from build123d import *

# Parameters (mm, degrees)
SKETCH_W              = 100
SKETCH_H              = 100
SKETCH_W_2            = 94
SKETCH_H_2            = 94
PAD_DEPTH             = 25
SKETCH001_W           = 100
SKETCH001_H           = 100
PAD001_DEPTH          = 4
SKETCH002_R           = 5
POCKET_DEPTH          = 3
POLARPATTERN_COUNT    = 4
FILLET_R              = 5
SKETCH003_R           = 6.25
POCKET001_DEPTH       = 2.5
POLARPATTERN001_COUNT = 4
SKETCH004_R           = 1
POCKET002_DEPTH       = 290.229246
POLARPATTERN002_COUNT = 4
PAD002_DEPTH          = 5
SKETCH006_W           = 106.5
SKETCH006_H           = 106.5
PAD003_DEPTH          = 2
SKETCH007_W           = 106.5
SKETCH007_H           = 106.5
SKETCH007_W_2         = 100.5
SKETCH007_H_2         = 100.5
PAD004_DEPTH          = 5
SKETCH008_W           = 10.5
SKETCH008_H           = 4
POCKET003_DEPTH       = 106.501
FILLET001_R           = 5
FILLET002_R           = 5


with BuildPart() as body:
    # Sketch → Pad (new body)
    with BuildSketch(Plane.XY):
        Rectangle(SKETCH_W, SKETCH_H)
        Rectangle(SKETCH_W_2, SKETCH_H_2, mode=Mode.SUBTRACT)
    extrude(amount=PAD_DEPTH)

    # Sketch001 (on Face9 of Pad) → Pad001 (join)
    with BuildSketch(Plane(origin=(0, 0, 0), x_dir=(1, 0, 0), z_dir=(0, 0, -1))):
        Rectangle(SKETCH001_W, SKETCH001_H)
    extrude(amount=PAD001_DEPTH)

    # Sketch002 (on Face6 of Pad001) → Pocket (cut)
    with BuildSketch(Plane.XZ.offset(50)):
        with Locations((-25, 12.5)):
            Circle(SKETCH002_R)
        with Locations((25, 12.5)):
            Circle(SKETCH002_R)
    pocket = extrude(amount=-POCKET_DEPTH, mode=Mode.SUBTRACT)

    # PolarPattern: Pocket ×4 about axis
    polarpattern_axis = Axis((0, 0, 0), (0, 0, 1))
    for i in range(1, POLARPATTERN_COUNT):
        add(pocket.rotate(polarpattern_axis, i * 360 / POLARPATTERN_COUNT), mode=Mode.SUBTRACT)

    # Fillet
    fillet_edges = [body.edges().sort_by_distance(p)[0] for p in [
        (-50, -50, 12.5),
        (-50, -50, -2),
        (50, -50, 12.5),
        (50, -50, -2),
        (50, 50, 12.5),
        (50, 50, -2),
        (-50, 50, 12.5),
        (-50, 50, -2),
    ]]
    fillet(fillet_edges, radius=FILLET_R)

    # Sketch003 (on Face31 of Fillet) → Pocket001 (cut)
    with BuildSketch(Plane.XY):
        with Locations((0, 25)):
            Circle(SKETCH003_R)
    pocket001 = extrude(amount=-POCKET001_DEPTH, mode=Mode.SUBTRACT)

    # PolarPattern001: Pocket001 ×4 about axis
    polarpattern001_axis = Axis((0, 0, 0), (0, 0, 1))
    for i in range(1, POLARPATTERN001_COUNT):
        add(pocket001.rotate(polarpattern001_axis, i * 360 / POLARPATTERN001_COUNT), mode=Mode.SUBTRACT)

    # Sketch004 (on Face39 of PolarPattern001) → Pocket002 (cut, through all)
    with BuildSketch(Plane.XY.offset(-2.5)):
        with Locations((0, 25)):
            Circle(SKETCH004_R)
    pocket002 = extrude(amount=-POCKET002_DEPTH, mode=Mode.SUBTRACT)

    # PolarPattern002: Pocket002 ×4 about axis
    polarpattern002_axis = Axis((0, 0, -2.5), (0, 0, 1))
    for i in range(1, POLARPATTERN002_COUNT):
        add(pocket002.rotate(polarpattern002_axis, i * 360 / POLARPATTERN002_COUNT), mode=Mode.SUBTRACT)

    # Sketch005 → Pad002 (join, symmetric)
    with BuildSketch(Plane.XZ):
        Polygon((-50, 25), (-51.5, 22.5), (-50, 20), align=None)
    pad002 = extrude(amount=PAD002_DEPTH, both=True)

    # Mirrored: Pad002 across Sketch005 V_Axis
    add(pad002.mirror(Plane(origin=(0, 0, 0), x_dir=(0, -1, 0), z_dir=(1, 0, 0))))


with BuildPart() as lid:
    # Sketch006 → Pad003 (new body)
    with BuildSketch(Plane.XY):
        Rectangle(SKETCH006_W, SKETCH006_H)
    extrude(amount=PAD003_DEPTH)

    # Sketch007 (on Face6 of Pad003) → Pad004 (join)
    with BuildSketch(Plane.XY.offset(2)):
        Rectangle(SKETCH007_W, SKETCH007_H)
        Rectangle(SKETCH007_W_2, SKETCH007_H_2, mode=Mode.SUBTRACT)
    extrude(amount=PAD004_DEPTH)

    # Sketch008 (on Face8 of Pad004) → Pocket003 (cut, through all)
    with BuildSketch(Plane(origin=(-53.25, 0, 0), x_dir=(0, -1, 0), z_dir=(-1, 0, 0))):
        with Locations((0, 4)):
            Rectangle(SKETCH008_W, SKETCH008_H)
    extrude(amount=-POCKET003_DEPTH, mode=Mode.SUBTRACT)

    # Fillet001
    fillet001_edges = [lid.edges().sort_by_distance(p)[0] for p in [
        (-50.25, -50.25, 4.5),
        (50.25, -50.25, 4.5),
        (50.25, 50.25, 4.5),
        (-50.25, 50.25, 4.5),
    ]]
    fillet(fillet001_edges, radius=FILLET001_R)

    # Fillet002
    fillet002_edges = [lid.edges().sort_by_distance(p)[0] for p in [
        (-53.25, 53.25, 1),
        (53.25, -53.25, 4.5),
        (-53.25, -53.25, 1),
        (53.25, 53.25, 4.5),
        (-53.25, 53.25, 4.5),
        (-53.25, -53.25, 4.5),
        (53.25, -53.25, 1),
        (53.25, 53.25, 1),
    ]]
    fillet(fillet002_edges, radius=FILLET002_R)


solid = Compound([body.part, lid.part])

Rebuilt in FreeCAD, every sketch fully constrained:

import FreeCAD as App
import Part
import Sketcher
Q = App.Units.Quantity


def edges_at(feature, points):
    """Names of the edges that pass closest to the given points."""
    edges = feature.Shape.Edges
    near = lambda p: min(range(len(edges)), key=lambda i: edges[i].distToShape(Part.Vertex(*p))[0])
    return sorted({f"Edge{near(p) + 1}" for p in points})

doc = App.newDocument("Part")
body = doc.addObject("PartDesign::Body", "Body")

sketch1 = body.newObject("Sketcher::SketchObject", "Sketch")
sketch1.AttachmentSupport = (doc.getObject("XY_Plane"), [""])
sketch1.MapMode = "FlatFace"
sketch1.addGeometry([
    Part.LineSegment(App.Vector(-50, 50, 0), App.Vector(-50, -50, 0)),
    Part.LineSegment(App.Vector(-50, -50, 0), App.Vector(50, -50, 0)),
    Part.LineSegment(App.Vector(50, -50, 0), App.Vector(50, 50, 0)),
    Part.LineSegment(App.Vector(50, 50, 0), App.Vector(-50, 50, 0)),
    Part.LineSegment(App.Vector(47, -47, 0), App.Vector(-47, -47, 0)),
    Part.LineSegment(App.Vector(-47, -47, 0), App.Vector(-47, 47, 0)),
    Part.LineSegment(App.Vector(-47, 47, 0), App.Vector(47, 47, 0)),
    Part.LineSegment(App.Vector(47, 47, 0), App.Vector(47, -47, 0)),
], False)
sketch1.addConstraint([
    Sketcher.Constraint("Coincident", 0, 2, 1, 1),
    Sketcher.Constraint("Coincident", 1, 2, 2, 1),
    Sketcher.Constraint("Coincident", 2, 2, 3, 1),
    Sketcher.Constraint("Coincident", 3, 2, 0, 1),
    Sketcher.Constraint("Coincident", 4, 2, 5, 1),
    Sketcher.Constraint("Coincident", 5, 2, 6, 1),
    Sketcher.Constraint("Coincident", 6, 2, 7, 1),
    Sketcher.Constraint("Coincident", 7, 2, 4, 1),
    Sketcher.Constraint("Vertical", 0),
    Sketcher.Constraint("Horizontal", 1),
    Sketcher.Constraint("Vertical", 2),
    Sketcher.Constraint("Horizontal", 3),
    Sketcher.Constraint("Horizontal", 4),
    Sketcher.Constraint("Vertical", 5),
    Sketcher.Constraint("Horizontal", 6),
    Sketcher.Constraint("Vertical", 7),
    Sketcher.Constraint("Symmetric", 0, 2, 2, 2, -1, 1),
    Sketcher.Constraint("Symmetric", 4, 2, 6, 2, -1, 1),
    Sketcher.Constraint("Equal", 3, 0),
    Sketcher.Constraint("Equal", 6, 5),
    Sketcher.Constraint("DistanceX", 1, 1, 1, 2, Q("100 mm")),
    Sketcher.Constraint("DistanceX", 4, 2, 4, 1, Q("94 mm")),
])
pad1 = body.newObject("PartDesign::Pad", "Pad")
pad1.Profile = sketch1
pad1.Length = 25

sketch2 = body.newObject("Sketcher::SketchObject", "Sketch001")
sketch2.AttachmentSupport = (doc.getObject("XY_Plane"), [""])
sketch2.MapMode = "FlatFace"
sketch2.addGeometry([
    Part.LineSegment(App.Vector(-50, -50, 0), App.Vector(-50, 50, 0)),
    Part.LineSegment(App.Vector(-50, 50, 0), App.Vector(50, 50, 0)),
    Part.LineSegment(App.Vector(50, 50, 0), App.Vector(50, -50, 0)),
    Part.LineSegment(App.Vector(50, -50, 0), App.Vector(-50, -50, 0)),
], False)
sketch2.addConstraint([
    Sketcher.Constraint("Coincident", 0, 2, 1, 1),
    Sketcher.Constraint("Coincident", 1, 2, 2, 1),
    Sketcher.Constraint("Coincident", 2, 2, 3, 1),
    Sketcher.Constraint("Coincident", 3, 2, 0, 1),
    Sketcher.Constraint("Vertical", 0),
    Sketcher.Constraint("Horizontal", 1),
    Sketcher.Constraint("Vertical", 2),
    Sketcher.Constraint("Horizontal", 3),
    Sketcher.Constraint("Symmetric", 0, 2, 2, 2, -1, 1),
    Sketcher.Constraint("Equal", 3, 0),
    Sketcher.Constraint("DistanceX", 1, 1, 1, 2, Q("100 mm")),
])
pad2 = body.newObject("PartDesign::Pad", "Pad001")
pad2.Profile = sketch2
pad2.Length = 4
pad2.Reversed = True

sketch3 = body.newObject("Sketcher::SketchObject", "Sketch002")
sketch3.AttachmentSupport = (doc.getObject("XZ_Plane"), [""])
sketch3.MapMode = "FlatFace"
sketch3.AttachmentOffset = App.Placement(App.Vector(0, 0, 50), App.Rotation())
sketch3.addGeometry([
    Part.Circle(App.Vector(-25, 12, 0), App.Vector(0, 0, 1), 5),
    Part.Circle(App.Vector(25, 12, 0), App.Vector(0, 0, 1), 5),
], False)
sketch3.addConstraint([
    Sketcher.Constraint("Equal", 0, 1),
    Sketcher.Constraint("Symmetric", 0, 3, 1, 3, -2),
    Sketcher.Constraint("Diameter", 0, Q("10 mm")),
    Sketcher.Constraint("DistanceX", 0, 3, -1, 1, Q("25 mm")),
    Sketcher.Constraint("DistanceY", -1, 1, 0, 3, Q("12.5 mm")),
])
pocket1 = body.newObject("PartDesign::Pocket", "Pocket")
pocket1.Profile = sketch3
pocket1.Length = 3
doc.recompute()

polarpattern = body.newObject("PartDesign::PolarPattern", "PolarPattern")
polarpattern.Originals = [pocket1]
polarpattern.Axis = (doc.getObject("Z_Axis"), [""])
polarpattern.Angle = 360
polarpattern.Occurrences = 4
body.Tip = polarpattern
doc.recompute()

fillet = body.newObject("PartDesign::Fillet", "Fillet")
fillet.Base = (polarpattern, edges_at(polarpattern, [
    (-50, -50, 10.5),
    (-50, -50, 10.5),
    (50, -50, 10.5),
    (50, -50, 10.5),
    (50, 50, 10.5),
    (50, 50, 10.5),
    (-50, 50, 10.5),
    (-50, 50, 10.5),
]))
fillet.Radius = 5

sketch4 = body.newObject("Sketcher::SketchObject", "Sketch003")
sketch4.AttachmentSupport = (doc.getObject("XY_Plane"), [""])
sketch4.MapMode = "FlatFace"
sketch4.addGeometry(Part.Circle(App.Vector(0, 25, 0), App.Vector(0, 0, 1), 6), False)
sketch4.addConstraint([
    Sketcher.Constraint("PointOnObject", 0, 3, -2),
    Sketcher.Constraint("Diameter", 0, Q("12.5 mm")),
    Sketcher.Constraint("DistanceY", -1, 1, 0, 3, Q("25 mm")),
])
pocket2 = body.newObject("PartDesign::Pocket", "Pocket001")
pocket2.Profile = sketch4
pocket2.Length = 2.5
doc.recompute()

polarpattern2 = body.newObject("PartDesign::PolarPattern", "PolarPattern001")
polarpattern2.Originals = [pocket2]
polarpattern2.Axis = (doc.getObject("Z_Axis"), [""])
polarpattern2.Angle = 360
polarpattern2.Occurrences = 4
body.Tip = polarpattern2

sketch5 = body.newObject("Sketcher::SketchObject", "Sketch004")
sketch5.AttachmentSupport = (doc.getObject("XY_Plane"), [""])
sketch5.MapMode = "FlatFace"
sketch5.AttachmentOffset = App.Placement(App.Vector(0, 0, -2.5), App.Rotation())
sketch5.addGeometry(Part.Circle(App.Vector(0, 25, 0), App.Vector(0, 0, 1), 1), False)
sketch5.addConstraint([
    Sketcher.Constraint("PointOnObject", 0, 3, -2),
    Sketcher.Constraint("Diameter", 0, Q("2 mm")),
    Sketcher.Constraint("DistanceY", -1, 1, 0, 3, Q("25 mm")),
])
pocket3 = body.newObject("PartDesign::Pocket", "Pocket002")
pocket3.Profile = sketch5
pocket3.Type = "ThroughAll"
doc.recompute()

polarpattern3 = body.newObject("PartDesign::PolarPattern", "PolarPattern002")
polarpattern3.Originals = [pocket3]
polarpattern3.Axis = (doc.getObject("Z_Axis"), [""])
polarpattern3.Angle = 360
polarpattern3.Occurrences = 4
body.Tip = polarpattern3

sketch6 = body.newObject("Sketcher::SketchObject", "Sketch005")
sketch6.AttachmentSupport = (doc.getObject("XZ_Plane"), [""])
sketch6.MapMode = "FlatFace"
sketch6.addGeometry([
    Part.LineSegment(App.Vector(-50, 25, 0), App.Vector(-51.5, 22.5, 0)),
    Part.LineSegment(App.Vector(-51.5, 22.5, 0), App.Vector(-50, 20, 0)),
    Part.LineSegment(App.Vector(-50, 20, 0), App.Vector(-50, 25, 0)),
], False)
sketch6.addConstraint([
    Sketcher.Constraint("Coincident", 0, 2, 1, 1),
    Sketcher.Constraint("Coincident", 1, 2, 2, 1),
    Sketcher.Constraint("Coincident", 2, 2, 0, 1),
    Sketcher.Constraint("Vertical", 2),
    Sketcher.Constraint("Equal", 0, 1),
    Sketcher.Constraint("DistanceY", 2, 1, 2, 2, Q("5 mm")),
    Sketcher.Constraint("DistanceX", 1, 2, -1, 1, Q("50 mm")),
    Sketcher.Constraint("DistanceY", -1, 1, 1, 2, Q("20 mm")),
    Sketcher.Constraint("DistanceX", 0, 2, -1, 1, Q("51.5 mm")),
])
pad3 = body.newObject("PartDesign::Pad", "Pad002")
pad3.Profile = sketch6
pad3.Length = 10
pad3.Midplane = True
doc.recompute()

mirrored = body.newObject("PartDesign::Mirrored", "Mirrored")
mirrored.Originals = [pad3]
mirrored.MirrorPlane = (doc.getObject("YZ_Plane"), [""])
body.Tip = mirrored
body2 = doc.addObject("PartDesign::Body", "Body001")

sketch7 = body2.newObject("Sketcher::SketchObject", "Sketch006")
sketch7.AttachmentSupport = (doc.getObject("XY_Plane001"), [""])
sketch7.MapMode = "FlatFace"
sketch7.addGeometry([
    Part.LineSegment(App.Vector(-53, 53, 0), App.Vector(-53, -53, 0)),
    Part.LineSegment(App.Vector(-53, -53, 0), App.Vector(53, -53, 0)),
    Part.LineSegment(App.Vector(53, -53, 0), App.Vector(53, 53, 0)),
    Part.LineSegment(App.Vector(53, 53, 0), App.Vector(-53, 53, 0)),
], False)
sketch7.addConstraint([
    Sketcher.Constraint("Coincident", 0, 2, 1, 1),
    Sketcher.Constraint("Coincident", 1, 2, 2, 1),
    Sketcher.Constraint("Coincident", 2, 2, 3, 1),
    Sketcher.Constraint("Coincident", 3, 2, 0, 1),
    Sketcher.Constraint("Vertical", 0),
    Sketcher.Constraint("Horizontal", 1),
    Sketcher.Constraint("Vertical", 2),
    Sketcher.Constraint("Horizontal", 3),
    Sketcher.Constraint("Symmetric", 0, 2, 2, 2, -1, 1),
    Sketcher.Constraint("Equal", 3, 0),
    Sketcher.Constraint("DistanceX", 1, 1, 1, 2, Q("106.5 mm")),
])
pad4 = body2.newObject("PartDesign::Pad", "Pad003")
pad4.Profile = sketch7
pad4.Length = 2

sketch8 = body2.newObject("Sketcher::SketchObject", "Sketch007")
sketch8.AttachmentSupport = (doc.getObject("XY_Plane001"), [""])
sketch8.MapMode = "FlatFace"
sketch8.AttachmentOffset = App.Placement(App.Vector(0, 0, 2), App.Rotation())
sketch8.addGeometry([
    Part.LineSegment(App.Vector(-53, 53, 0), App.Vector(-53, -53, 0)),
    Part.LineSegment(App.Vector(-53, -53, 0), App.Vector(53, -53, 0)),
    Part.LineSegment(App.Vector(53, -53, 0), App.Vector(53, 53, 0)),
    Part.LineSegment(App.Vector(53, 53, 0), App.Vector(-53, 53, 0)),
    Part.LineSegment(App.Vector(50, -50, 0), App.Vector(-50, -50, 0)),
    Part.LineSegment(App.Vector(-50, -50, 0), App.Vector(-50, 50, 0)),
    Part.LineSegment(App.Vector(-50, 50, 0), App.Vector(50, 50, 0)),
    Part.LineSegment(App.Vector(50, 50, 0), App.Vector(50, -50, 0)),
], False)
sketch8.addConstraint([
    Sketcher.Constraint("Coincident", 0, 2, 1, 1),
    Sketcher.Constraint("Coincident", 1, 2, 2, 1),
    Sketcher.Constraint("Coincident", 2, 2, 3, 1),
    Sketcher.Constraint("Coincident", 3, 2, 0, 1),
    Sketcher.Constraint("Coincident", 4, 2, 5, 1),
    Sketcher.Constraint("Coincident", 5, 2, 6, 1),
    Sketcher.Constraint("Coincident", 6, 2, 7, 1),
    Sketcher.Constraint("Coincident", 7, 2, 4, 1),
    Sketcher.Constraint("Vertical", 0),
    Sketcher.Constraint("Horizontal", 1),
    Sketcher.Constraint("Vertical", 2),
    Sketcher.Constraint("Horizontal", 3),
    Sketcher.Constraint("Horizontal", 4),
    Sketcher.Constraint("Vertical", 5),
    Sketcher.Constraint("Horizontal", 6),
    Sketcher.Constraint("Vertical", 7),
    Sketcher.Constraint("Symmetric", 0, 2, 2, 2, -1, 1),
    Sketcher.Constraint("Symmetric", 4, 2, 6, 2, -1, 1),
    Sketcher.Constraint("Equal", 3, 0),
    Sketcher.Constraint("Equal", 6, 5),
    Sketcher.Constraint("DistanceX", 1, 1, 1, 2, Q("106.5 mm")),
    Sketcher.Constraint("DistanceX", 4, 2, 4, 1, Q("100.5 mm")),
])
pad5 = body2.newObject("PartDesign::Pad", "Pad004")
pad5.Profile = sketch8
pad5.Length = 5

sketch9 = body2.newObject("Sketcher::SketchObject", "Sketch008")
sketch9.AttachmentSupport = (doc.getObject("YZ_Plane001"), [""])
sketch9.MapMode = "FlatFace"
sketch9.AttachmentOffset = App.Placement(App.Vector(0, 0, -53.25), App.Rotation())
sketch9.addGeometry([
    Part.LineSegment(App.Vector(5.2, 6, 0), App.Vector(5.2, 2, 0)),
    Part.LineSegment(App.Vector(5.2, 2, 0), App.Vector(-5.2, 2, 0)),
    Part.LineSegment(App.Vector(-5.2, 2, 0), App.Vector(-5.2, 6, 0)),
    Part.LineSegment(App.Vector(-5.2, 6, 0), App.Vector(5.2, 6, 0)),
], False)
sketch9.addConstraint([
    Sketcher.Constraint("Coincident", 0, 2, 1, 1),
    Sketcher.Constraint("Coincident", 1, 2, 2, 1),
    Sketcher.Constraint("Coincident", 2, 2, 3, 1),
    Sketcher.Constraint("Coincident", 3, 2, 0, 1),
    Sketcher.Constraint("Vertical", 0),
    Sketcher.Constraint("Horizontal", 1),
    Sketcher.Constraint("Vertical", 2),
    Sketcher.Constraint("Horizontal", 3),
    Sketcher.Constraint("DistanceY", 0, 2, 0, 1, Q("4 mm")),
    Sketcher.Constraint("DistanceX", 1, 2, 1, 1, Q("10.5 mm")),
    Sketcher.Constraint("DistanceY", -1, 1, 0, 2, Q("2 mm")),
    Sketcher.Constraint("DistanceX", -1, 1, 0, 2, Q("5.25 mm")),
])
pocket4 = body2.newObject("PartDesign::Pocket", "Pocket003")
pocket4.Profile = sketch9
pocket4.Type = "ThroughAll"
pocket4.Reversed = True
doc.recompute()

fillet2 = body2.newObject("PartDesign::Fillet", "Fillet001")
fillet2.Base = (pocket4, edges_at(pocket4, [
    (-50.25, -50.25, 4.5),
    (50.25, -50.25, 4.5),
    (50.25, 50.25, 4.5),
    (-50.25, 50.25, 4.5),
]))
fillet2.Radius = 5
doc.recompute()

fillet3 = body2.newObject("PartDesign::Fillet", "Fillet002")
fillet3.Base = (fillet2, edges_at(fillet2, [
    (-53.25, 53.25, 3.5),
    (53.25, -53.25, 3.5),
    (-53.25, -53.25, 3.5),
    (53.25, 53.25, 3.5),
    (-53.25, 53.25, 3.5),
    (-53.25, -53.25, 3.5),
    (53.25, -53.25, 3.5),
    (53.25, 53.25, 3.5),
]))
fillet3.Radius = 5

doc.recompute()
